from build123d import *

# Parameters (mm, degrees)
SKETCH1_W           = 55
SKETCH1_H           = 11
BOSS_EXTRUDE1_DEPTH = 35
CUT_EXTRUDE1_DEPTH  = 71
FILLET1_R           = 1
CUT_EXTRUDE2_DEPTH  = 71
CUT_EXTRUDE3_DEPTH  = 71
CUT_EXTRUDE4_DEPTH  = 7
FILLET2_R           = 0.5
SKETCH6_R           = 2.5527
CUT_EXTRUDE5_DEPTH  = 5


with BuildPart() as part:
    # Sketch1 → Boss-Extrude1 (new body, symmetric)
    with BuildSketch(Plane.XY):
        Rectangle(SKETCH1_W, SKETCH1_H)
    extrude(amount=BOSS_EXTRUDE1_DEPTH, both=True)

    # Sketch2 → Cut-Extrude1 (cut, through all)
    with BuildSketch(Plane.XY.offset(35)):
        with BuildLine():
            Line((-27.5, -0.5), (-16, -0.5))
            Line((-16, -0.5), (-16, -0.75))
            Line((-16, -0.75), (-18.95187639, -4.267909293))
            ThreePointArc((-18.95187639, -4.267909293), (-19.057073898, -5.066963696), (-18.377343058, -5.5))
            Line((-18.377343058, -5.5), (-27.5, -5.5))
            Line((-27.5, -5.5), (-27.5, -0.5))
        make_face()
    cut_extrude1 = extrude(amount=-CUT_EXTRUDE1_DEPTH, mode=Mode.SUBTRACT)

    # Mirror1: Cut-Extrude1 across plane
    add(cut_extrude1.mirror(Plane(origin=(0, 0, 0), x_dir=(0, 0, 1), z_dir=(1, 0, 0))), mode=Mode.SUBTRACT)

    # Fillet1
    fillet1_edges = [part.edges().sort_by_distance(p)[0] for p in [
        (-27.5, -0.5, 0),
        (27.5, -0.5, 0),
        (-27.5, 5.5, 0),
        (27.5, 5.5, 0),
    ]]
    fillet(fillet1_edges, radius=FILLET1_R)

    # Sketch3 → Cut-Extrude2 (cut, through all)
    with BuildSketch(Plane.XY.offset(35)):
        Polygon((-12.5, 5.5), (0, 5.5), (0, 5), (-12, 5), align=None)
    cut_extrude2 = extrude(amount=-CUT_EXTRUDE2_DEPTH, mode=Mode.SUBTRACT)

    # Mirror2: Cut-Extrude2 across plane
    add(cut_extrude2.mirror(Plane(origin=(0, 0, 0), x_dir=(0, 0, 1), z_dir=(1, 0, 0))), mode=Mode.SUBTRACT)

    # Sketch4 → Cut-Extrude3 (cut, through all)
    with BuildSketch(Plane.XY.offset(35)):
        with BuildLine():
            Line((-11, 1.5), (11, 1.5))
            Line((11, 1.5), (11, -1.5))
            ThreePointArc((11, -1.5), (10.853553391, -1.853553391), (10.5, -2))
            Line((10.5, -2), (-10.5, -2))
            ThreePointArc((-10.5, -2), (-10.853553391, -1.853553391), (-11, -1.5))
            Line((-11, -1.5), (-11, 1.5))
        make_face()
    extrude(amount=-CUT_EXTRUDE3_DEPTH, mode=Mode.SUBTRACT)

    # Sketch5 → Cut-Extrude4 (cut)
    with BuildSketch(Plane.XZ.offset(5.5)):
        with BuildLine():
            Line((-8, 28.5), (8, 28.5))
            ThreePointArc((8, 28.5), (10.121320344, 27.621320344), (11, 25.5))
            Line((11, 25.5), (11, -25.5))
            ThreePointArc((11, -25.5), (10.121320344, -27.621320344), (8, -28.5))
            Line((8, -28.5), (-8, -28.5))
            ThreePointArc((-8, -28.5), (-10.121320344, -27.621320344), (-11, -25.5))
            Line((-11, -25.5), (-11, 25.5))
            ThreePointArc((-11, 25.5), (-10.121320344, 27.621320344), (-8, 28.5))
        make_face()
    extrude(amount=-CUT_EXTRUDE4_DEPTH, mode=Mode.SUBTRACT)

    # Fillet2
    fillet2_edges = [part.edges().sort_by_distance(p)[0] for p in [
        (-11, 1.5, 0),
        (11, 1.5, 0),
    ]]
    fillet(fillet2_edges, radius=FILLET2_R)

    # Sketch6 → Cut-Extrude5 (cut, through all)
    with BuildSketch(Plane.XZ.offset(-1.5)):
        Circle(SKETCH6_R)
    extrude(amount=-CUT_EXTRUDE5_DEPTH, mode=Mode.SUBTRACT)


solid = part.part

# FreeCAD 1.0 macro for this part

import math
import FreeCAD as App
import Part
import Sketcher

V = App.Vector
Q = App.Units.Quantity


def edges_at(feature, points):
    """Names of the edges that pass closest to the given points."""
    edges = feature.Shape.Edges
    near = lambda p: min(range(len(edges)), key=lambda i: edges[i].distToShape(Part.Vertex(*p))[0])
    return sorted({f"Edge{near(p) + 1}" for p in points})

doc = App.newDocument("Part")
params = doc.addObject("Spreadsheet::Sheet", "Params")
for row, (alias, value) in enumerate([
    ("sketch1_width", "55 mm"),
    ("sketch1_height", "11 mm"),
    ("pad1_length", "70 mm"),
    ("sketch2_height", "5 mm"),
    ("sketch2_radius", "0.75 mm"),
    ("sketch2_width", "11.5 mm"),
    ("fillet_radius", "1 mm"),
    ("sketch3_width", "12 mm"),
    ("sketch3_width2", "12.5 mm"),
    ("sketch4_radius", "0.5 mm"),
    ("sketch4_width", "22 mm"),
    ("sketch4_height", "3 mm"),
    ("sketch5_radius", "3 mm"),
    ("sketch5_width", "16 mm"),
    ("sketch5_height", "51 mm"),
    ("pocket4_length", "7 mm"),
    ("fillet2_radius", "0.5 mm"),
], start=1):
    params.set(f"A{row}", alias)
    params.set(f"B{row}", "=" + value)
    params.setAlias(f"B{row}", alias)

body = doc.addObject("PartDesign::Body", "Body")

# Sketch on XY plane
sketch1 = body.newObject("Sketcher::SketchObject", "Sketch")
sketch1.AttachmentSupport = (doc.getObject("XY_Plane"), [""])
sketch1.MapMode = "FlatFace"
sketch1.addGeometry([
    Part.LineSegment(V(-27.5, 5.5, 0), V(-27.5, -5.5, 0)),
    Part.LineSegment(V(-27.5, -5.5, 0), V(27.5, -5.5, 0)),
    Part.LineSegment(V(27.5, -5.5, 0), V(27.5, 5.5, 0)),
    Part.LineSegment(V(27.5, 5.5, 0), V(-27.5, 5.5, 0)),
], False)
sketch1.addConstraint([
    Sketcher.Constraint("Coincident", 0, 2, 1, 1),
    Sketcher.Constraint("Coincident", 1, 2, 2, 1),
    Sketcher.Constraint("Coincident", 2, 2, 3, 1),
    Sketcher.Constraint("Coincident", 3, 2, 0, 1),
    Sketcher.Constraint("Vertical", 0),
    Sketcher.Constraint("Horizontal", 1),
    Sketcher.Constraint("Vertical", 2),
    Sketcher.Constraint("Horizontal", 3),
    Sketcher.Constraint("Symmetric", 0, 2, 2, 2, -1, 1),
    Sketcher.Constraint("DistanceX", 1, 1, 1, 2, Q("55 mm")),
    Sketcher.Constraint("DistanceY", 0, 2, 0, 1, Q("11 mm")),
])
sketch1.setExpression("Constraints[9]", "Params.sketch1_width")
sketch1.setExpression("Constraints[10]", "Params.sketch1_height")
pad1 = body.newObject("PartDesign::Pad", "Pad")
pad1.Profile = sketch1
pad1.setExpression("Length", "Params.pad1_length")
pad1.Midplane = True

# Sketch on XY plane
sketch2 = body.newObject("Sketcher::SketchObject", "Sketch001")
sketch2.AttachmentSupport = (doc.getObject("XY_Plane"), [""])
sketch2.MapMode = "FlatFace"
sketch2.AttachmentOffset = App.Placement(V(0, 0, 35), App.Rotation())
sketch2.addGeometry([
    Part.LineSegment(V(-16, -0.5, 0), V(-27.5, -0.5, 0)),  # 0
    Part.LineSegment(V(-27.5, -0.5, 0), V(-27.5, -5.5, 0)),  # 1
    Part.LineSegment(V(-27.5, -5.5, 0), V(-18.377343, -5.5, 0)),  # 2
    Part.ArcOfCircle(Part.Circle(V(-18.377343, -4.75, 0), V(0, 0, 1), 0.75), math.radians(140), math.radians(270)),  # 3
    Part.LineSegment(V(-18.951876, -4.267909, 0), V(-16, -0.75, 0)),  # 4
    Part.LineSegment(V(-16, -0.75, 0), V(-16, -0.5, 0)),  # 5
], False)
sketch2.addConstraint([
    Sketcher.Constraint("Coincident", 0, 2, 1, 1),
    Sketcher.Constraint("Coincident", 1, 2, 2, 1),
    Sketcher.Constraint("Tangent", 2, 2, 3, 2),
    Sketcher.Constraint("Tangent", 3, 1, 4, 1),
    Sketcher.Constraint("Coincident", 4, 2, 5, 1),
    Sketcher.Constraint("Coincident", 5, 2, 0, 1),
    Sketcher.Constraint("Horizontal", 0),
    Sketcher.Constraint("Vertical", 1),
    Sketcher.Constraint("Horizontal", 2),
    Sketcher.Constraint("Vertical", 5),
    Sketcher.Constraint("DistanceY", 1, 2, 1, 1, Q("5 mm")),
    Sketcher.Constraint("Angle", 4, Q("50 deg")),
    Sketcher.Constraint("Radius", 3, Q("0.75 mm")),
    Sketcher.Constraint("DistanceX", 0, 2, 0, 1, Q("11.5 mm")),
    Sketcher.Constraint("DistanceX", 4, 2, -1, 1, Q("16 mm")),
    Sketcher.Constraint("DistanceY", 3, 3, 4, 2, Q("4 mm")),
    Sketcher.Constraint("DistanceY", 0, 2, -1, 1, Q("0.5 mm")),
])
sketch2.setExpression("Constraints[10]", "Params.sketch2_height")
sketch2.setExpression("Constraints[12]", "Params.sketch2_radius")
sketch2.setExpression("Constraints[13]", "Params.sketch2_width")
pocket1 = body.newObject("PartDesign::Pocket", "Pocket")
pocket1.Profile = sketch2
pocket1.Type = "ThroughAll"
doc.recompute()

mirrored = body.newObject("PartDesign::Mirrored", "Mirrored")
mirrored.Originals = [pocket1]
mirrored.MirrorPlane = (doc.getObject("YZ_Plane"), [""])
body.Tip = mirrored
doc.recompute()

fillet = body.newObject("PartDesign::Fillet", "Fillet")
fillet.Base = (mirrored, edges_at(mirrored, [
    (-27.5, -0.5, 0),
    (27.5, -0.5, 0),
    (-27.5, 5.5, 0),
    (27.5, 5.5, 0),
]))
fillet.setExpression("Radius", "Params.fillet_radius")

# Sketch on XY plane
sketch3 = body.newObject("Sketcher::SketchObject", "Sketch002")
sketch3.AttachmentSupport = (doc.getObject("XY_Plane"), [""])
sketch3.MapMode = "FlatFace"
sketch3.AttachmentOffset = App.Placement(V(0, 0, 35), App.Rotation())
sketch3.addGeometry([
    Part.LineSegment(V(0, 5.5, 0), V(-12.5, 5.5, 0)),
    Part.LineSegment(V(-12.5, 5.5, 0), V(-12, 5, 0)),
    Part.LineSegment(V(-12, 5, 0), V(0, 5, 0)),
    Part.LineSegment(V(0, 5, 0), V(0, 5.5, 0)),
], False)
sketch3.addConstraint([
    Sketcher.Constraint("Coincident", 0, 2, 1, 1),
    Sketcher.Constraint("Coincident", 1, 2, 2, 1),
    Sketcher.Constraint("Coincident", 2, 2, 3, 1),
    Sketcher.Constraint("Coincident", 3, 2, 0, 1),
    Sketcher.Constraint("Horizontal", 0),
    Sketcher.Constraint("Horizontal", 2),
    Sketcher.Constraint("Vertical", 3),
    Sketcher.Constraint("PointOnObject", 2, 2, -2),
    Sketcher.Constraint("DistanceX", 2, 1, 2, 2, Q("12 mm")),
    Sketcher.Constraint("Angle", 1, Q("-45 deg")),
    Sketcher.Constraint("DistanceX", 0, 2, 0, 1, Q("12.5 mm")),
    Sketcher.Constraint("DistanceY", -1, 1, 1, 2, Q("5 mm")),
])
sketch3.setExpression("Constraints[8]", "Params.sketch3_width")
sketch3.setExpression("Constraints[10]", "Params.sketch3_width2")
pocket2 = body.newObject("PartDesign::Pocket", "Pocket001")
pocket2.Profile = sketch3
pocket2.Type = "ThroughAll"
doc.recompute()

mirrored2 = body.newObject("PartDesign::Mirrored", "Mirrored001")
mirrored2.Originals = [pocket2]
mirrored2.MirrorPlane = (doc.getObject("YZ_Plane"), [""])
body.Tip = mirrored2

# Sketch on XY plane
sketch4 = body.newObject("Sketcher::SketchObject", "Sketch003")
sketch4.AttachmentSupport = (doc.getObject("XY_Plane"), [""])
sketch4.MapMode = "FlatFace"
sketch4.AttachmentOffset = App.Placement(V(0, 0, 35), App.Rotation())
sketch4.addGeometry([
    Part.LineSegment(V(11, 1.5, 0), V(-11, 1.5, 0)),  # 0
    Part.LineSegment(V(-11, 1.5, 0), V(-11, -1.5, 0)),  # 1
    Part.ArcOfCircle(Part.Circle(V(-10.5, -1.5, 0), V(0, 0, 1), 0.5), math.radians(180), math.radians(270)),  # 2
    Part.LineSegment(V(-10.5, -2, 0), V(10.5, -2, 0)),  # 3
    Part.ArcOfCircle(Part.Circle(V(10.5, -1.5, 0), V(0, 0, 1), 0.5), math.radians(-90), math.radians(0)),  # 4
    Part.LineSegment(V(11, -1.5, 0), V(11, 1.5, 0)),  # 5
], False)
sketch4.addConstraint([
    Sketcher.Constraint("Coincident", 0, 2, 1, 1),
    Sketcher.Constraint("Tangent", 1, 2, 2, 1),
    Sketcher.Constraint("Tangent", 2, 2, 3, 1),
    Sketcher.Constraint("Tangent", 3, 2, 4, 1),
    Sketcher.Constraint("Tangent", 4, 2, 5, 1),
    Sketcher.Constraint("Coincident", 5, 2, 0, 1),
    Sketcher.Constraint("Horizontal", 0),
    Sketcher.Constraint("Vertical", 1),
    Sketcher.Constraint("Horizontal", 3),
    Sketcher.Constraint("Vertical", 5),
    Sketcher.Constraint("Equal", 2, 4),
    Sketcher.Constraint("Symmetric", 0, 2, 4, 2, -1, 1),
    Sketcher.Constraint("Radius", 2, Q("0.5 mm")),
    Sketcher.Constraint("DistanceX", 0, 2, 0, 1, Q("22 mm")),
    Sketcher.Constraint("DistanceY", 1, 2, 1, 1, Q("3 mm")),
])
sketch4.setExpression("Constraints[12]", "Params.sketch4_radius")
sketch4.setExpression("Constraints[13]", "Params.sketch4_width")
sketch4.setExpression("Constraints[14]", "Params.sketch4_height")
pocket3 = body.newObject("PartDesign::Pocket", "Pocket002")
pocket3.Profile = sketch4
pocket3.Type = "ThroughAll"

# Sketch on XZ plane
sketch5 = body.newObject("Sketcher::SketchObject", "Sketch004")
sketch5.AttachmentSupport = (doc.getObject("XZ_Plane"), [""])
sketch5.MapMode = "FlatFace"
sketch5.AttachmentOffset = App.Placement(V(0, 0, 5.5), App.Rotation())
sketch5.addGeometry([
    Part.LineSegment(V(8, 28.5, 0), V(-8, 28.5, 0)),  # 0
    Part.ArcOfCircle(Part.Circle(V(-8, 25.5, 0), V(0, 0, 1), 3), math.radians(90), math.radians(180)),  # 1
    Part.LineSegment(V(-11, 25.5, 0), V(-11, -25.5, 0)),  # 2
    Part.ArcOfCircle(Part.Circle(V(-8, -25.5, 0), V(0, 0, 1), 3), math.radians(180), math.radians(270)),  # 3
    Part.LineSegment(V(-8, -28.5, 0), V(8, -28.5, 0)),  # 4
    Part.ArcOfCircle(Part.Circle(V(8, -25.5, 0), V(0, 0, 1), 3), math.radians(-90), math.radians(0)),  # 5
    Part.LineSegment(V(11, -25.5, 0), V(11, 25.5, 0)),  # 6
    Part.ArcOfCircle(Part.Circle(V(8, 25.5, 0), V(0, 0, 1), 3), math.radians(0), math.radians(90)),  # 7
], False)
sketch5.addConstraint([
    Sketcher.Constraint("Tangent", 0, 2, 1, 1),
    Sketcher.Constraint("Tangent", 1, 2, 2, 1),
    Sketcher.Constraint("Tangent", 2, 2, 3, 1),
    Sketcher.Constraint("Tangent", 3, 2, 4, 1),
    Sketcher.Constraint("Tangent", 4, 2, 5, 1),
    Sketcher.Constraint("Tangent", 5, 2, 6, 1),
    Sketcher.Constraint("Tangent", 6, 2, 7, 1),
    Sketcher.Constraint("Tangent", 7, 2, 0, 1),
    Sketcher.Constraint("Horizontal", 0),
    Sketcher.Constraint("Vertical", 2),
    Sketcher.Constraint("Horizontal", 4),
    Sketcher.Constraint("Vertical", 6),
    Sketcher.Constraint("Equal", 1, 3),
    Sketcher.Constraint("Equal", 3, 5),
    Sketcher.Constraint("Equal", 5, 7),
    Sketcher.Constraint("Symmetric", 1, 3, 5, 3, -1, 1),
    Sketcher.Constraint("Radius", 1, Q("3 mm")),
    Sketcher.Constraint("DistanceX", 0, 2, 0, 1, Q("16 mm")),
    Sketcher.Constraint("DistanceY", 2, 2, 2, 1, Q("51 mm")),
])
sketch5.setExpression("Constraints[16]", "Params.sketch5_radius")
sketch5.setExpression("Constraints[17]", "Params.sketch5_width")
sketch5.setExpression("Constraints[18]", "Params.sketch5_height")
pocket4 = body.newObject("PartDesign::Pocket", "Pocket003")
pocket4.Profile = sketch5
pocket4.setExpression("Length", "Params.pocket4_length")
doc.recompute()

fillet2 = body.newObject("PartDesign::Fillet", "Fillet001")
fillet2.Base = (pocket4, edges_at(pocket4, [(-11, 1.5, 0), (11, 1.5, 0)]))
fillet2.setExpression("Radius", "Params.fillet2_radius")

# Sketch on XZ plane
sketch6 = body.newObject("Sketcher::SketchObject", "Sketch005")
sketch6.AttachmentSupport = (doc.getObject("XZ_Plane"), [""])
sketch6.MapMode = "FlatFace"
sketch6.AttachmentOffset = App.Placement(V(0, 0, -1.5), App.Rotation())
sketch6.addGeometry(Part.Circle(V(0, 0, 0), V(0, 0, 1), 2.5527), False)
sketch6.addConstraint([
    Sketcher.Constraint("Coincident", 0, 3, -1, 1),
    Sketcher.Constraint("Diameter", 0, Q("5.1054 mm")),
])
pocket5 = body.newObject("PartDesign::Pocket", "Pocket004")
pocket5.Profile = sketch6
pocket5.Type = "ThroughAll"

doc.recompute()
